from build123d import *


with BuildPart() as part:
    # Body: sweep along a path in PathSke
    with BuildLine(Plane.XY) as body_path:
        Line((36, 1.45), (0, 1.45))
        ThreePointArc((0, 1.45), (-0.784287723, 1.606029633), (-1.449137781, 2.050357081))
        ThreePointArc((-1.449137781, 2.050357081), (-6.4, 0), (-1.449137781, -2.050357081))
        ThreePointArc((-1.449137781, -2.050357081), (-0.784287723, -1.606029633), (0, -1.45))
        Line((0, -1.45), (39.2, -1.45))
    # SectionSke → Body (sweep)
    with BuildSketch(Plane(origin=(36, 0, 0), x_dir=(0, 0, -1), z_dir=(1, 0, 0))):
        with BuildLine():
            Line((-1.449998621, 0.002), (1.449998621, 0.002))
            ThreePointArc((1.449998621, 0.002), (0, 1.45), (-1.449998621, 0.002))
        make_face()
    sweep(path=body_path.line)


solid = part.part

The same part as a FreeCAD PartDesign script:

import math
import FreeCAD as App
import Part
import Sketcher
from FreeCAD import Vector

doc = App.newDocument("Part")
body = doc.addObject("PartDesign::Body", "Body")

# Sketch on YZ plane
sketch1 = body.newObject("Sketcher::SketchObject", "Sketch")
sketch1.AttachmentSupport = (doc.getObject("YZ_Plane"), [""])
sketch1.MapMode = "FlatFace"
sketch1.AttachmentOffset = App.Placement(Vector(0, 0, 36), App.Rotation())
sketch1.addGeometry([
    Part.LineSegment(Vector(0.002, 1.449999, 0), Vector(0.002, -1.449999, 0)),
    Part.ArcOfCircle(Part.Circle(Vector(0, 0, 0), Vector(0, 0, 1), 1.45), math.radians(-89.920971), math.radians(89.920971)),
], False)
sketch1.addConstraint([
    Sketcher.Constraint("Coincident", 0, 1, 1, 2),
    Sketcher.Constraint("Coincident", 1, 1, 0, 2),
    Sketcher.Constraint("Vertical", 0),
    Sketcher.Constraint("Coincident", 1, 3, -1, 1),
    Sketcher.Constraint("Radius", 1, 1.45),
    Sketcher.Constraint("DistanceX", -1, 1, 0, 1, 0.002),
])

# Sketch on XY plane
sketch2 = body.newObject("Sketcher::SketchObject", "Sketch001")
sketch2.AttachmentSupport = (doc.getObject("XY_Plane"), [""])
sketch2.MapMode = "FlatFace"
sketch2.addGeometry([
    Part.LineSegment(Vector(36, 1.45, 0), Vector(0, 1.45, 0)),  # 0
    Part.ArcOfCircle(Part.Circle(Vector(0, 3.499138, 0), Vector(0, 0, 1), 2.049138), math.radians(-135.007057), math.radians(-90)),  # 1
    Part.ArcOfCircle(Part.Circle(Vector(-3.5, 0, 0), Vector(0, 0, 1), 2.9), math.radians(44.992943), math.radians(315.007057)),  # 2
    Part.ArcOfCircle(Part.Circle(Vector(0, -3.499138, 0), Vector(0, 0, 1), 2.049138), math.radians(90), math.radians(135.007057)),  # 3
    Part.LineSegment(Vector(0, -1.45, 0), Vector(39.2, -1.45, 0)),  # 4
], False)
sketch2.addConstraint([
    Sketcher.Constraint("Tangent", 0, 2, 1, 2),
    Sketcher.Constraint("Tangent", 1, 1, 2, 1),
    Sketcher.Constraint("Tangent", 2, 2, 3, 2),
    Sketcher.Constraint("Tangent", 3, 1, 4, 1),
    Sketcher.Constraint("Horizontal", 0),
    Sketcher.Constraint("Horizontal", 4),
    Sketcher.Constraint("Equal", 1, 3),
    Sketcher.Constraint("Symmetric", 1, 3, 3, 3, -1, 1),
    Sketcher.Constraint("PointOnObject", 1, 3, -2),
    Sketcher.Constraint("Radius", 2, 2.9),
    Sketcher.Constraint("DistanceX", 0, 2, 0, 1, 36.0),
    Sketcher.Constraint("DistanceX", 4, 1, 4, 2, 39.2),
    Sketcher.Constraint("DistanceX", 2, 3, -1, 1, 3.5),
    Sketcher.Constraint("DistanceY", 3, 1, 0, 2, 2.9),
])
doc.recompute()

additivepipe = body.newObject("PartDesign::AdditivePipe", "AdditivePipe")
additivepipe.Profile = sketch1
additivepipe.Spine = (sketch2, ["Edge1", "Edge2", "Edge3", "Edge4", "Edge5"])

doc.recompute()
